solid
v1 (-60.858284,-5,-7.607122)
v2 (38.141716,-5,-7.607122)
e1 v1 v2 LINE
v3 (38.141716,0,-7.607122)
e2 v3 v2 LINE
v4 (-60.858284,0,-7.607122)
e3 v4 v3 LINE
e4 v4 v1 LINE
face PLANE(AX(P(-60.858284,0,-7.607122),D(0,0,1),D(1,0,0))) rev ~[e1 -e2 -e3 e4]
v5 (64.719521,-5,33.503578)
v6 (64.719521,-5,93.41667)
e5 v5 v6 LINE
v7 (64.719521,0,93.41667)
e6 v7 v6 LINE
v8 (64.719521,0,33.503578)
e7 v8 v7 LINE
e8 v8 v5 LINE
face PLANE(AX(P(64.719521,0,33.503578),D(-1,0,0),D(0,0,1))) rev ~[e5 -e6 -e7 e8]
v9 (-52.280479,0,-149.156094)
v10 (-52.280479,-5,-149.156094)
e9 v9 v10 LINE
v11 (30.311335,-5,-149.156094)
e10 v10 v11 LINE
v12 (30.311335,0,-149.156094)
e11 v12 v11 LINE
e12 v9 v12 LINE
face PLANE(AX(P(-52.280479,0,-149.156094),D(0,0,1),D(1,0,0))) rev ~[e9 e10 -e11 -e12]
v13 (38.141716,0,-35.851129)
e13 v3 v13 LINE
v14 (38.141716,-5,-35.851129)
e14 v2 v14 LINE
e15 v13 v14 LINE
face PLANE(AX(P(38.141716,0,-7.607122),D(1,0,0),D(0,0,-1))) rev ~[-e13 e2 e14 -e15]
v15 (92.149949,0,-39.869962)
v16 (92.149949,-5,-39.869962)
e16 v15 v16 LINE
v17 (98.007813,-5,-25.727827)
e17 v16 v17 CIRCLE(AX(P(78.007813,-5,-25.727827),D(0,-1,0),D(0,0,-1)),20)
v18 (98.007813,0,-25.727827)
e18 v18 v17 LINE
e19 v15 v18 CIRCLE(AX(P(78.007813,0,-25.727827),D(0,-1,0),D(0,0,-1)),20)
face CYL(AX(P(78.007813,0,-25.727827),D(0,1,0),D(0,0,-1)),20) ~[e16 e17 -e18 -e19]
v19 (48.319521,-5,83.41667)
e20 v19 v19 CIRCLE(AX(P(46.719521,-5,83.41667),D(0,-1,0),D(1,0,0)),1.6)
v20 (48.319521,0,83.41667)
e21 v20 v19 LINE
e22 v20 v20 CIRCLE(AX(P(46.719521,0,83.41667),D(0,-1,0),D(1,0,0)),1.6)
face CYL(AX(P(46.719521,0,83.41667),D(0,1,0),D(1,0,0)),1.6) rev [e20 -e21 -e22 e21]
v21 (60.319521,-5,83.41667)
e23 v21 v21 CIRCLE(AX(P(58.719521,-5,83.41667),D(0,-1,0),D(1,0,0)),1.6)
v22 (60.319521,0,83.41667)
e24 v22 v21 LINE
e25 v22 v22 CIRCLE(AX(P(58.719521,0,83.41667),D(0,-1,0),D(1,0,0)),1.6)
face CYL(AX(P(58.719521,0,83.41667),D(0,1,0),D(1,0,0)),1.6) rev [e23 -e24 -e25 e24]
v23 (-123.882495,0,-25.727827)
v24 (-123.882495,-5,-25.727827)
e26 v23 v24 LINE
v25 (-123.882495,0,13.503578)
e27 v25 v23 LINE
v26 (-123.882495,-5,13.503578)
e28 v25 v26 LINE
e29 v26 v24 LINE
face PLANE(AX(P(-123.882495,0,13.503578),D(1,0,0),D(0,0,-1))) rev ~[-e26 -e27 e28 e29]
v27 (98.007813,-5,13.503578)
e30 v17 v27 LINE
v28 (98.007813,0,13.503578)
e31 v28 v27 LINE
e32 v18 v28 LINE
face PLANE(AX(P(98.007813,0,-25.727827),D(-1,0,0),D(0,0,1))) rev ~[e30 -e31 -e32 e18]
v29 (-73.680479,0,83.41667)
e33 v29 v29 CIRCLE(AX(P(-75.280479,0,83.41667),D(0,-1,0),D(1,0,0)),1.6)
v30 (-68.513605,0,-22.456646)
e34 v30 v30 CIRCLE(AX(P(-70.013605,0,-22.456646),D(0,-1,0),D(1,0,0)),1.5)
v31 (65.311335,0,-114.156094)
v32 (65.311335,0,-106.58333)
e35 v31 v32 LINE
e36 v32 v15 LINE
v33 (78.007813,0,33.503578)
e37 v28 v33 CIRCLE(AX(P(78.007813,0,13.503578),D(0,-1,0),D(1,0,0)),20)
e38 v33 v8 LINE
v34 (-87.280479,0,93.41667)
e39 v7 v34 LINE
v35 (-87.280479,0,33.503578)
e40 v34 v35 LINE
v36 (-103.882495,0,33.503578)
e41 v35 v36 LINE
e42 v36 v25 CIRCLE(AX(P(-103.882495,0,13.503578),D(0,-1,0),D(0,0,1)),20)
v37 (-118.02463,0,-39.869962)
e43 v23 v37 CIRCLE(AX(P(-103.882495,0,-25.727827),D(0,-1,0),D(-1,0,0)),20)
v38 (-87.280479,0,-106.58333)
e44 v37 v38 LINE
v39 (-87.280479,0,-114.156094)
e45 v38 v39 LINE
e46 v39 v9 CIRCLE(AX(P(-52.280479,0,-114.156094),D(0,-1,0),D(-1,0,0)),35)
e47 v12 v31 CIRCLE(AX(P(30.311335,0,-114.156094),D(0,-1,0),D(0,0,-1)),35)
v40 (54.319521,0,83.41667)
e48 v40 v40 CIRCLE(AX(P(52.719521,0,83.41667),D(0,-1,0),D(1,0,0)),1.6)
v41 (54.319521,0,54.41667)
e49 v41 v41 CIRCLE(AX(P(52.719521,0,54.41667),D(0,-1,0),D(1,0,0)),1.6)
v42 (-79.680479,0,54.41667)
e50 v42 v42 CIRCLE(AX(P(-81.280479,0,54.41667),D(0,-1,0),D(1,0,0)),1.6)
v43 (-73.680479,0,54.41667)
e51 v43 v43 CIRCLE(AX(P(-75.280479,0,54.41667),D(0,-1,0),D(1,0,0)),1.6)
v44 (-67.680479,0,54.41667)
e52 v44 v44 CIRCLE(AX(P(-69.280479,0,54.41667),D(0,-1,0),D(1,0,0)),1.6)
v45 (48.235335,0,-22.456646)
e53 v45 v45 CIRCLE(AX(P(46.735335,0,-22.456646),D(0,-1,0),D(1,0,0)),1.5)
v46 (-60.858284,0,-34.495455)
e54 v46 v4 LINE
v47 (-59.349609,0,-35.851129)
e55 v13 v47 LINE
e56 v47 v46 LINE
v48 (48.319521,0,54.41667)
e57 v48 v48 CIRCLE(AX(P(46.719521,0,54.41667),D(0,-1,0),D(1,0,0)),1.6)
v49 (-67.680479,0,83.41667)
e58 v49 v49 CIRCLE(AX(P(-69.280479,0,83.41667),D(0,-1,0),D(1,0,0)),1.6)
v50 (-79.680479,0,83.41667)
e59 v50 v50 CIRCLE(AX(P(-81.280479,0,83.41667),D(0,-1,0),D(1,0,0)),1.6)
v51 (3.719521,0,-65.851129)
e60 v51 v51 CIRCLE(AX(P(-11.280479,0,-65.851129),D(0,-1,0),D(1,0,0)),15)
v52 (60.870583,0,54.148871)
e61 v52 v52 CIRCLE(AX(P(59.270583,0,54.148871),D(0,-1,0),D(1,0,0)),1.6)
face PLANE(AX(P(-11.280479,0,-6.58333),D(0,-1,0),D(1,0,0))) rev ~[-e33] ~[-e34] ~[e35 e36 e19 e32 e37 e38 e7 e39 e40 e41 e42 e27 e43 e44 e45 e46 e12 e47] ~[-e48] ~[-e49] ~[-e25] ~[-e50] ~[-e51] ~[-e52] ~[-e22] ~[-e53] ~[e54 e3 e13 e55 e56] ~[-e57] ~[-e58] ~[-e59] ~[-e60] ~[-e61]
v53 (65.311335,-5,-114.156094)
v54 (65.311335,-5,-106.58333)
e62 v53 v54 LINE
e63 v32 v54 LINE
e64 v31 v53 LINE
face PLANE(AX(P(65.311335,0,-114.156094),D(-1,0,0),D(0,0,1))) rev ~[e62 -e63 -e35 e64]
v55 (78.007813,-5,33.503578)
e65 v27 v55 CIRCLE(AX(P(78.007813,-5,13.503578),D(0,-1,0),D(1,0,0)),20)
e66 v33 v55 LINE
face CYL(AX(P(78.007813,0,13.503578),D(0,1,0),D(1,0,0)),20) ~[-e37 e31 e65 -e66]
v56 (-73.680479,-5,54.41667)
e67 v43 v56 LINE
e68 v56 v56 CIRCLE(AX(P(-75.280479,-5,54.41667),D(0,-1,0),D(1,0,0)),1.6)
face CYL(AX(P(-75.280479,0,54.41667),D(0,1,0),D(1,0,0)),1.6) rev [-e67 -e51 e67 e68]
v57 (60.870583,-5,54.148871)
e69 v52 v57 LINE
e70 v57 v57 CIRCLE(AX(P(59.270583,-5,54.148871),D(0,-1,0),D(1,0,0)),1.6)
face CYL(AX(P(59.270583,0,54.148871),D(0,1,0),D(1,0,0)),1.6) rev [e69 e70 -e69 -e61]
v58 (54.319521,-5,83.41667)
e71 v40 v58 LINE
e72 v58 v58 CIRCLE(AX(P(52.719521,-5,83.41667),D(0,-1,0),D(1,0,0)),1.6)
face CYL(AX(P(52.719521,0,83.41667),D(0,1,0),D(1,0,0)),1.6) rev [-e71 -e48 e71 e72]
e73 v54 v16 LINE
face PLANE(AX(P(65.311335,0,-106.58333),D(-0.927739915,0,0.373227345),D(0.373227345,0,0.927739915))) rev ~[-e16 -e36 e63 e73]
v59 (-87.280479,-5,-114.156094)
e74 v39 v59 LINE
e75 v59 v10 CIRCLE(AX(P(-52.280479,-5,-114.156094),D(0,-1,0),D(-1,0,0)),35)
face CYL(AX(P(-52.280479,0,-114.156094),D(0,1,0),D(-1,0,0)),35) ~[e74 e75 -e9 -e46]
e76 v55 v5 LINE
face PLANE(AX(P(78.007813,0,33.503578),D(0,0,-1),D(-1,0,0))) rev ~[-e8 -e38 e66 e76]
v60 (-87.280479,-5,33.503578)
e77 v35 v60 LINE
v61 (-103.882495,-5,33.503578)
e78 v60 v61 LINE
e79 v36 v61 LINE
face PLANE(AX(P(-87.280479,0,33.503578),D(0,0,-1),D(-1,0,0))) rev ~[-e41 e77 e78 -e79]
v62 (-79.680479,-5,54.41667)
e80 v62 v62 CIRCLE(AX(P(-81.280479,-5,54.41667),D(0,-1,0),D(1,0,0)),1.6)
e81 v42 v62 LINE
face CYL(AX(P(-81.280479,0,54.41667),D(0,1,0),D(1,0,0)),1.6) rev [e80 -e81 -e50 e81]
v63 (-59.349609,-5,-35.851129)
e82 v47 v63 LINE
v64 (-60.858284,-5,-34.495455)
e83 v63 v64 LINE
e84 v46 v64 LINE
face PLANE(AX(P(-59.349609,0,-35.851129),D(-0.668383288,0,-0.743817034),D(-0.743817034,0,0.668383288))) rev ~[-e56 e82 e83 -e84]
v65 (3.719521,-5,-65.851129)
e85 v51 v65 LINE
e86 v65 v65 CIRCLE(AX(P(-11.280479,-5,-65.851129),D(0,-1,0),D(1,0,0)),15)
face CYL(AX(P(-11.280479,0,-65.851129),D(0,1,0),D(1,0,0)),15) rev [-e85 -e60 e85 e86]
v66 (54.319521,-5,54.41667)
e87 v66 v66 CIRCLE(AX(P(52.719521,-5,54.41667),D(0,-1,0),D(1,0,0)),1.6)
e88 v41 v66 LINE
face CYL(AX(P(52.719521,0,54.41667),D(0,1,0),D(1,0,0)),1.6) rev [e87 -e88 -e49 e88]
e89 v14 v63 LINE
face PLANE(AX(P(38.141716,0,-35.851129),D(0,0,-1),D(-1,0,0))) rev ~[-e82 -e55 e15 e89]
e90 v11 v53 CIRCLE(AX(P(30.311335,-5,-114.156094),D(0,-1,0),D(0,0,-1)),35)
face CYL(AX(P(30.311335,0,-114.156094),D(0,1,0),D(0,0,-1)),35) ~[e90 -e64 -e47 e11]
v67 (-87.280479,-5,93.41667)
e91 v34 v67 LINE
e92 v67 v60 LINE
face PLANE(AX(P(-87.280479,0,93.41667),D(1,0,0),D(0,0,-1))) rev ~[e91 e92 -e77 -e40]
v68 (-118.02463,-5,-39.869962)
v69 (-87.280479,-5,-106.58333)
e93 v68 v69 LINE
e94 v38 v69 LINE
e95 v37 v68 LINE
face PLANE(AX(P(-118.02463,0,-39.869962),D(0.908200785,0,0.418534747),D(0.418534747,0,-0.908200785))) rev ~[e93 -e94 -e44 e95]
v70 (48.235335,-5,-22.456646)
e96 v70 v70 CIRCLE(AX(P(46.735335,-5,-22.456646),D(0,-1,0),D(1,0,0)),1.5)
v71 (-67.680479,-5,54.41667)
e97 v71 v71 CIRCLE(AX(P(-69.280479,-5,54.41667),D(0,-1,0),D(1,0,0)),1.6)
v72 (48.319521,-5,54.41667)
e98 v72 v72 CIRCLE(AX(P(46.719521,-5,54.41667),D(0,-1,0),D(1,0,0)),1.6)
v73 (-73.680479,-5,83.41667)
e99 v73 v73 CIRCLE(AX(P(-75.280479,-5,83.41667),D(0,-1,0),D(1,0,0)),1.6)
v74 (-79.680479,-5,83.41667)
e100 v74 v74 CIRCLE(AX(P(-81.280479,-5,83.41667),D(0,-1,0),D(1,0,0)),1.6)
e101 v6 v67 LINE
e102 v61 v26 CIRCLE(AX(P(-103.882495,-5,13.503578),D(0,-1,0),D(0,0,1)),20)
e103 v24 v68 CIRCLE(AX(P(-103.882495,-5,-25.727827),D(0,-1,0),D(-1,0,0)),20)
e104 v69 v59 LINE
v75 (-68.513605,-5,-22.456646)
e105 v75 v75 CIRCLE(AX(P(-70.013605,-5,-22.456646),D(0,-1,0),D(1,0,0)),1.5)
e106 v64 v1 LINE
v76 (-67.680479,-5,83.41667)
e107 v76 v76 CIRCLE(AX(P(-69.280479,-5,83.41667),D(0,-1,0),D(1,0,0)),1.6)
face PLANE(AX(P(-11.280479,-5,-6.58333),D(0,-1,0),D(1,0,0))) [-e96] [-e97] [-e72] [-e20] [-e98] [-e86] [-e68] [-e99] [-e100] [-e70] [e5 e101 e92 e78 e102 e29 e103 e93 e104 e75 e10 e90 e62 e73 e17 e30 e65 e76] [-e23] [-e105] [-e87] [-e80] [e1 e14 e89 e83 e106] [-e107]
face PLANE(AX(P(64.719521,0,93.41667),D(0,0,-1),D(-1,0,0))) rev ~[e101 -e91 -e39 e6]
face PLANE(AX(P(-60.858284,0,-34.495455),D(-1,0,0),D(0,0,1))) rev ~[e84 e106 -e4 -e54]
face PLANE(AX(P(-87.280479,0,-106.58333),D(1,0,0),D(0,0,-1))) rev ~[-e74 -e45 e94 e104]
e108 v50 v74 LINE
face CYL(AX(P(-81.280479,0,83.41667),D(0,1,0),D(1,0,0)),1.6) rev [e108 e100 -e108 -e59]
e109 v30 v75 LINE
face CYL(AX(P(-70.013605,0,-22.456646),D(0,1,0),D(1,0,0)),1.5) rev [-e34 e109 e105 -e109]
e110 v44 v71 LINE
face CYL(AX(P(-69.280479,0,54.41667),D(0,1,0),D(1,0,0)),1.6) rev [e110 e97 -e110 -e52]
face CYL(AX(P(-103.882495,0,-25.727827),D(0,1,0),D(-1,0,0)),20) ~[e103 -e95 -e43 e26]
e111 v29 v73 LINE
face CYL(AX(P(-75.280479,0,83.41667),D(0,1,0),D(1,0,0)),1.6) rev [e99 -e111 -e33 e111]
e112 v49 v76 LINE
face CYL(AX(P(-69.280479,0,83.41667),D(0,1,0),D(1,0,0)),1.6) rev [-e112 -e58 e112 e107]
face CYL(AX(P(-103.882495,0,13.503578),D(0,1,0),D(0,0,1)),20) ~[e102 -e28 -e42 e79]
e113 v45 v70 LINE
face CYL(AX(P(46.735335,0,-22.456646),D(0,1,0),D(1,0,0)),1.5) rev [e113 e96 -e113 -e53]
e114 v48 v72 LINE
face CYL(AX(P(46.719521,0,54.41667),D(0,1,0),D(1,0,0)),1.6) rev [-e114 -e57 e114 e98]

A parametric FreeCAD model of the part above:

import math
import FreeCAD as App
import Part
import Sketcher
Q = App.Units.Quantity

doc = App.newDocument("Part")
body = doc.addObject("PartDesign::Body", "Body")

sketch1 = body.newObject("Sketcher::SketchObject", "Sketch")
sketch1.AttachmentSupport = (doc.getObject("XZ_Plane"), [""])
sketch1.MapMode = "FlatFace"
sketch1.addGeometry(Part.LineSegment(App.Vector(64.7, 93.4, 0), App.Vector(-87.3, 93.4, 0)), False)
sketch1.addGeometry(Part.LineSegment(App.Vector(-87.3, 93.4, 0), App.Vector(-87.3, 33.5, 0)), False)
sketch1.addGeometry(Part.LineSegment(App.Vector(-87.3, 33.5, 0), App.Vector(-103.9, 33.5, 0)), False)
sketch1.addGeometry(Part.ArcOfCircle(Part.Circle(App.Vector(-103.9, 13.5, 0), App.Vector(0, 0, 1), 20), math.radians(90), math.radians(180)), False)
sketch1.addGeometry(Part.LineSegment(App.Vector(-123.9, 13.5, 0), App.Vector(-123.9, -25.7, 0)), False)
sketch1.addGeometry(Part.ArcOfCircle(Part.Circle(App.Vector(-103.9, -25.7, 0), App.Vector(0, 0, 1), 20), math.radians(180), math.radians(225)), False)
sketch1.addGeometry(Part.LineSegment(App.Vector(-118, -39.9, 0), App.Vector(-87.3, -106.6, 0)), False)
sketch1.addGeometry(Part.LineSegment(App.Vector(-87.3, -106.6, 0), App.Vector(-87.3, -114.2, 0)), False)
sketch1.addGeometry(Part.ArcOfCircle(Part.Circle(App.Vector(-52.3, -114.2, 0), App.Vector(0, 0, 1), 35), math.radians(180), math.radians(270)), False)
sketch1.addGeometry(Part.LineSegment(App.Vector(-52.3, -149.2, 0), App.Vector(30.3, -149.2, 0)), False)
sketch1.addGeometry(Part.ArcOfCircle(Part.Circle(App.Vector(30.3, -114.2, 0), App.Vector(0, 0, 1), 35), math.radians(-90), math.radians(0)), False)
sketch1.addGeometry(Part.LineSegment(App.Vector(65.3, -114.2, 0), App.Vector(65.3, -106.6, 0)), False)
sketch1.addGeometry(Part.LineSegment(App.Vector(65.3, -106.6, 0), App.Vector(92.1, -39.9, 0)), False)
sketch1.addGeometry(Part.ArcOfCircle(Part.Circle(App.Vector(78, -25.7, 0), App.Vector(0, 0, 1), 20), math.radians(-45), math.radians(0)), False)
sketch1.addGeometry(Part.LineSegment(App.Vector(98, -25.7, 0), App.Vector(98, 13.5, 0)), False)
sketch1.addGeometry(Part.ArcOfCircle(Part.Circle(App.Vector(78, 13.5, 0), App.Vector(0, 0, 1), 20), math.radians(0), math.radians(90)), False)
sketch1.addGeometry(Part.LineSegment(App.Vector(78, 33.5, 0), App.Vector(64.7, 33.5, 0)), False)
sketch1.addGeometry(Part.LineSegment(App.Vector(64.7, 33.5, 0), App.Vector(64.7, 93.4, 0)), False)
sketch1.addGeometry(Part.Circle(App.Vector(-11.3, -65.9, 0), App.Vector(0, 0, 1), 15), False)
sketch1.addGeometry(Part.Circle(App.Vector(-70, -22.5, 0), App.Vector(0, 0, 1), 1.5), False)
sketch1.addGeometry(Part.LineSegment(App.Vector(38.1, -35.9, 0), App.Vector(-59.3, -35.9, 0)), False)
sketch1.addGeometry(Part.LineSegment(App.Vector(-59.3, -35.9, 0), App.Vector(-60.9, -34.5, 0)), False)
sketch1.addGeometry(Part.LineSegment(App.Vector(-60.9, -34.5, 0), App.Vector(-60.9, -7.6, 0)), False)
sketch1.addGeometry(Part.LineSegment(App.Vector(-60.9, -7.6, 0), App.Vector(38.1, -7.6, 0)), False)
sketch1.addGeometry(Part.LineSegment(App.Vector(38.1, -7.6, 0), App.Vector(38.1, -35.9, 0)), False)
sketch1.addGeometry(Part.Circle(App.Vector(46.7, -22.5, 0), App.Vector(0, 0, 1), 1.5), False)
sketch1.addGeometry(Part.Circle(App.Vector(-81.3, 54.4, 0), App.Vector(0, 0, 1), 1.6), False)
sketch1.addGeometry(Part.Circle(App.Vector(-75.3, 54.4, 0), App.Vector(0, 0, 1), 1.6), False)
sketch1.addGeometry(Part.Circle(App.Vector(-69.3, 54.4, 0), App.Vector(0, 0, 1), 1.6), False)
sketch1.addGeometry(Part.Circle(App.Vector(-81.3, 83.4, 0), App.Vector(0, 0, 1), 1.6), False)
sketch1.addGeometry(Part.Circle(App.Vector(-75.3, 83.4, 0), App.Vector(0, 0, 1), 1.6), False)
sketch1.addGeometry(Part.Circle(App.Vector(-69.3, 83.4, 0), App.Vector(0, 0, 1), 1.6), False)
sketch1.addGeometry(Part.Circle(App.Vector(46.7, 54.4, 0), App.Vector(0, 0, 1), 1.6), False)
sketch1.addGeometry(Part.Circle(App.Vector(52.7, 54.4, 0), App.Vector(0, 0, 1), 1.6), False)
sketch1.addGeometry(Part.Circle(App.Vector(59.3, 54.1, 0), App.Vector(0, 0, 1), 1.6), False)
sketch1.addGeometry(Part.Circle(App.Vector(46.7, 83.4, 0), App.Vector(0, 0, 1), 1.6), False)
sketch1.addGeometry(Part.Circle(App.Vector(52.7, 83.4, 0), App.Vector(0, 0, 1), 1.6), False)
sketch1.addGeometry(Part.Circle(App.Vector(58.7, 83.4, 0), App.Vector(0, 0, 1), 1.6), False)
sketch1.addConstraint(Sketcher.Constraint("Coincident", 0, 2, 1, 1))
sketch1.addConstraint(Sketcher.Constraint("Coincident", 1, 2, 2, 1))
sketch1.addConstraint(Sketcher.Constraint("Tangent", 2, 2, 3, 1))
sketch1.addConstraint(Sketcher.Constraint("Tangent", 3, 2, 4, 1))
sketch1.addConstraint(Sketcher.Constraint("Tangent", 4, 2, 5, 1))
sketch1.addConstraint(Sketcher.Constraint("Coincident", 5, 2, 6, 1))
sketch1.addConstraint(Sketcher.Constraint("Coincident", 6, 2, 7, 1))
sketch1.addConstraint(Sketcher.Constraint("Tangent", 7, 2, 8, 1))
sketch1.addConstraint(Sketcher.Constraint("Tangent", 8, 2, 9, 1))
sketch1.addConstraint(Sketcher.Constraint("Tangent", 9, 2, 10, 1))
sketch1.addConstraint(Sketcher.Constraint("Tangent", 10, 2, 11, 1))
sketch1.addConstraint(Sketcher.Constraint("Coincident", 11, 2, 12, 1))
sketch1.addConstraint(Sketcher.Constraint("Coincident", 12, 2, 13, 1))
sketch1.addConstraint(Sketcher.Constraint("Tangent", 13, 2, 14, 1))
sketch1.addConstraint(Sketcher.Constraint("Tangent", 14, 2, 15, 1))
sketch1.addConstraint(Sketcher.Constraint("Tangent", 15, 2, 16, 1))
sketch1.addConstraint(Sketcher.Constraint("Coincident", 16, 2, 17, 1))
sketch1.addConstraint(Sketcher.Constraint("Coincident", 17, 2, 0, 1))
sketch1.addConstraint(Sketcher.Constraint("Coincident", 20, 2, 21, 1))
sketch1.addConstraint(Sketcher.Constraint("Coincident", 21, 2, 22, 1))
sketch1.addConstraint(Sketcher.Constraint("Coincident", 22, 2, 23, 1))
sketch1.addConstraint(Sketcher.Constraint("Coincident", 23, 2, 24, 1))
sketch1.addConstraint(Sketcher.Constraint("Coincident", 24, 2, 20, 1))
sketch1.addConstraint(Sketcher.Constraint("Horizontal", 0))
sketch1.addConstraint(Sketcher.Constraint("Vertical", 1))
sketch1.addConstraint(Sketcher.Constraint("Horizontal", 2))
sketch1.addConstraint(Sketcher.Constraint("Vertical", 4))
sketch1.addConstraint(Sketcher.Constraint("Vertical", 7))
sketch1.addConstraint(Sketcher.Constraint("Horizontal", 9))
sketch1.addConstraint(Sketcher.Constraint("Vertical", 11))
sketch1.addConstraint(Sketcher.Constraint("Vertical", 14))
sketch1.addConstraint(Sketcher.Constraint("Horizontal", 16))
sketch1.addConstraint(Sketcher.Constraint("Vertical", 17))
sketch1.addConstraint(Sketcher.Constraint("Horizontal", 20))
sketch1.addConstraint(Sketcher.Constraint("Vertical", 22))
sketch1.addConstraint(Sketcher.Constraint("Horizontal", 23))
sketch1.addConstraint(Sketcher.Constraint("Vertical", 24))
sketch1.addConstraint(Sketcher.Constraint("Equal", 3, 5))
sketch1.addConstraint(Sketcher.Constraint("Equal", 8, 10))
sketch1.addConstraint(Sketcher.Constraint("Equal", 5, 13))
sketch1.addConstraint(Sketcher.Constraint("Equal", 13, 15))
sketch1.addConstraint(Sketcher.Constraint("Equal", 19, 25))
sketch1.addConstraint(Sketcher.Constraint("Equal", 26, 27))
sketch1.addConstraint(Sketcher.Constraint("Equal", 27, 28))
sketch1.addConstraint(Sketcher.Constraint("Equal", 28, 29))
sketch1.addConstraint(Sketcher.Constraint("Equal", 29, 30))
sketch1.addConstraint(Sketcher.Constraint("Equal", 30, 31))
sketch1.addConstraint(Sketcher.Constraint("Equal", 31, 32))
sketch1.addConstraint(Sketcher.Constraint("Equal", 32, 33))
sketch1.addConstraint(Sketcher.Constraint("Equal", 33, 34))
sketch1.addConstraint(Sketcher.Constraint("Equal", 34, 35))
sketch1.addConstraint(Sketcher.Constraint("Equal", 35, 36))
sketch1.addConstraint(Sketcher.Constraint("Equal", 36, 37))
sketch1.addConstraint(Sketcher.Constraint("Horizontal", 5, 3, 13, 3))
sketch1.addConstraint(Sketcher.Constraint("Horizontal", 3, 3, 15, 3))
sketch1.addConstraint(Sketcher.Constraint("Horizontal", 19, 3, 25, 3))
sketch1.addConstraint(Sketcher.Constraint("Horizontal", 26, 3, 27, 3))
sketch1.addConstraint(Sketcher.Constraint("Horizontal", 27, 3, 28, 3))
sketch1.addConstraint(Sketcher.Constraint("Horizontal", 29, 3, 30, 3))
sketch1.addConstraint(Sketcher.Constraint("Horizontal", 30, 3, 31, 3))
sketch1.addConstraint(Sketcher.Constraint("Horizontal", 28, 3, 32, 3))
sketch1.addConstraint(Sketcher.Constraint("Horizontal", 32, 3, 33, 3))
sketch1.addConstraint(Sketcher.Constraint("Horizontal", 31, 3, 35, 3))
sketch1.addConstraint(Sketcher.Constraint("Horizontal", 35, 3, 36, 3))
sketch1.addConstraint(Sketcher.Constraint("Horizontal", 36, 3, 37, 3))
sketch1.addConstraint(Sketcher.Constraint("Horizontal", 6, 2, 11, 2))
sketch1.addConstraint(Sketcher.Constraint("Horizontal", 5, 2, 12, 2))
sketch1.addConstraint(Sketcher.Constraint("Vertical", 26, 3, 29, 3))
sketch1.addConstraint(Sketcher.Constraint("Vertical", 27, 3, 30, 3))
sketch1.addConstraint(Sketcher.Constraint("Vertical", 28, 3, 31, 3))
sketch1.addConstraint(Sketcher.Constraint("Vertical", 32, 3, 35, 3))
sketch1.addConstraint(Sketcher.Constraint("Vertical", 33, 3, 36, 3))
sketch1.addConstraint(Sketcher.Constraint("Vertical", 1, 2, 6, 2))
sketch1.addConstraint(Sketcher.Constraint("Diameter", 18, Q("30 mm")))
sketch1.addConstraint(Sketcher.Constraint("Diameter", 19, Q("3 mm")))
sketch1.addConstraint(Sketcher.Constraint("Radius", 3, Q("20 mm")))
sketch1.addConstraint(Sketcher.Constraint("Radius", 8, Q("35 mm")))
sketch1.addConstraint(Sketcher.Constraint("Diameter", 26, Q("3.2 mm")))
sketch1.addConstraint(Sketcher.Constraint("DistanceX", 0, 2, 0, 1, Q("152 mm")))
sketch1.addConstraint(Sketcher.Constraint("DistanceX", 23, 1, 23, 2, Q("99 mm")))
sketch1.addConstraint(Sketcher.Constraint("DistanceX", 8, 3, 18, 3, Q("41 mm")))
sketch1.addConstraint(Sketcher.Constraint("DistanceX", 26, 3, 18, 3, Q("70 mm")))
sketch1.addConstraint(Sketcher.Constraint("DistanceX", 26, 3, 27, 3, Q("6 mm")))
sketch1.addConstraint(Sketcher.Constraint("DistanceX", 27, 3, 28, 3, Q("6 mm")))
sketch1.addConstraint(Sketcher.Constraint("DistanceY", 26, 3, 29, 3, Q("29 mm")))
sketch1.addConstraint(Sketcher.Constraint("DistanceX", 28, 3, 32, 3, Q("116 mm")))
sketch1.addConstraint(Sketcher.Constraint("DistanceX", 32, 3, 33, 3, Q("6 mm")))
sketch1.addConstraint(Sketcher.Constraint("DistanceX", 36, 3, 37, 3, Q("6 mm")))
sketch1.addConstraint(Sketcher.Constraint("DistanceY", 29, 3, 0, 2, Q("10 mm")))
sketch1.addConstraint(Sketcher.Constraint("DistanceY", 18, 3, 20, 2, Q("30 mm")))
sketch1.addConstraint(Sketcher.Constraint("DistanceX", 10, 3, 25, 3, Q("16.424 mm")))
sketch1.addConstraint(Sketcher.Constraint("DistanceY", 1, 2, 1, 1, Q("59.913091 mm")))
sketch1.addConstraint(Sketcher.Constraint("DistanceY", 18, 3, 13, 3, Q("40.123302 mm")))
sketch1.addConstraint(Sketcher.Constraint("DistanceY", 18, 3, 26, 3, Q("120.267798 mm")))
sketch1.addConstraint(Sketcher.Constraint("DistanceY", 34, 3, 33, 3, Q("0.267798 mm")))
sketch1.addConstraint(Sketcher.Constraint("DistanceY", 6, 2, 18, 3, Q("40.732202 mm")))
sketch1.addConstraint(Sketcher.Constraint("DistanceY", 22, 2, 3, 3, Q("21.1107 mm")))
sketch1.addConstraint(Sketcher.Constraint("Distance", 6, Q("73.456629 mm")))
sketch1.addConstraint(Sketcher.Constraint("Distance", 12, Q("71.909559 mm")))
sketch1.addConstraint(Sketcher.Constraint("DistanceX", 2, 2, 2, 1, Q("16.602016 mm")))
sketch1.addConstraint(Sketcher.Constraint("DistanceX", 9, 1, 9, 2, Q("82.591814 mm")))
sketch1.addConstraint(Sketcher.Constraint("DistanceX", 20, 2, 20, 1, Q("97.491325 mm")))
sketch1.addConstraint(Sketcher.Constraint("DistanceY", 7, 2, 7, 1, Q("7.572763 mm")))
sketch1.addConstraint(Sketcher.Constraint("DistanceY", 22, 1, 22, 2, Q("26.888333 mm")))
sketch1.addConstraint(Sketcher.Constraint("DistanceY", -1, 1, 3, 3, Q("13.503578 mm")))
sketch1.addConstraint(Sketcher.Constraint("DistanceX", 8, 3, -1, 1, Q("52.280479 mm")))
sketch1.addConstraint(Sketcher.Constraint("DistanceX", 20, 2, -1, 1, Q("59.349609 mm")))
sketch1.addConstraint(Sketcher.Constraint("DistanceX", 5, 3, 19, 3, Q("33.86889 mm")))
sketch1.addConstraint(Sketcher.Constraint("DistanceY", 5, 3, 19, 3, Q("3.271181 mm")))
sketch1.addConstraint(Sketcher.Constraint("DistanceX", 34, 3, 15, 3, Q("18.73723 mm")))
pad1 = body.newObject("PartDesign::Pad", "Pad")
pad1.Profile = sketch1
pad1.Length = 5

doc.recompute()
